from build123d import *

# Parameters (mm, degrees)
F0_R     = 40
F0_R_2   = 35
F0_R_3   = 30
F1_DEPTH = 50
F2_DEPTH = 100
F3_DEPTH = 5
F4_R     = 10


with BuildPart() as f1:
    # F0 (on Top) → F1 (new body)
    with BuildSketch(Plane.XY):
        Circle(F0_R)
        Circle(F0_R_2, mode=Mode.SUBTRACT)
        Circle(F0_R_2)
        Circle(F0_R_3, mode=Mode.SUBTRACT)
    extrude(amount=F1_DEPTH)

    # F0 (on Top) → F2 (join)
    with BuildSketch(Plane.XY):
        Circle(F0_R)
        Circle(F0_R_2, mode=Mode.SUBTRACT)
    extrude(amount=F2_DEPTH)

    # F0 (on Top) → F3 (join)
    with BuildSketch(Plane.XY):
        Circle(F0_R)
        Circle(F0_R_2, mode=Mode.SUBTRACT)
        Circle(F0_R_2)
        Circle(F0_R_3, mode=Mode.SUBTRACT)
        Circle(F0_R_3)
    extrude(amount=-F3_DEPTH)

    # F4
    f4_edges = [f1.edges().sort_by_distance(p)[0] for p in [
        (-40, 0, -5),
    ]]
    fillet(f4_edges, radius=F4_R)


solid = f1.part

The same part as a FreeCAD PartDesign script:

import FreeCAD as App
import Part
import Sketcher

V = App.Vector
Q = App.Units.Quantity


def edges_at(feature, points):
    """Names of the edges that pass closest to the given points."""
    edges = feature.Shape.Edges
    near = lambda p: min(range(len(edges)), key=lambda i: edges[i].distToShape(Part.Vertex(*p))[0])
    return sorted({f"Edge{near(p) + 1}" for p in points})

doc = App.newDocument("Part")
body = doc.addObject("PartDesign::Body", "Body")

sketch1 = body.newObject("Sketcher::SketchObject", "Sketch")
sketch1.AttachmentSupport = (doc.getObject("XY_Plane"), [""])
sketch1.MapMode = "FlatFace"
sketch1.addGeometry(Part.Circle(V(0, 0, 0), V(0, 0, 1), 40), False)
sketch1.addGeometry(Part.Circle(V(0, 0, 0), V(0, 0, 1), 30), False)
sketch1.addConstraint(Sketcher.Constraint("Coincident", 0, 3, -1, 1))
sketch1.addConstraint(Sketcher.Constraint("Coincident", 1, 3, -1, 1))
sketch1.addConstraint(Sketcher.Constraint("Diameter", 0, Q("80 mm")))
sketch1.addConstraint(Sketcher.Constraint("Diameter", 1, Q("60 mm")))
pad1 = body.newObject("PartDesign::Pad", "Pad")
pad1.Profile = sketch1
pad1.Length = 50

sketch2 = body.newObject("Sketcher::SketchObject", "Sketch001")
sketch2.AttachmentSupport = (doc.getObject("XY_Plane"), [""])
sketch2.MapMode = "FlatFace"
sketch2.addGeometry(Part.Circle(V(0, 0, 0), V(0, 0, 1), 40), False)
sketch2.addGeometry(Part.Circle(V(0, 0, 0), V(0, 0, 1), 35), False)
sketch2.addConstraint(Sketcher.Constraint("Coincident", 0, 3, -1, 1))
sketch2.addConstraint(Sketcher.Constraint("Coincident", 1, 3, -1, 1))
sketch2.addConstraint(Sketcher.Constraint("Diameter", 0, Q("80 mm")))
sketch2.addConstraint(Sketcher.Constraint("Diameter", 1, Q("70 mm")))
pad2 = body.newObject("PartDesign::Pad", "Pad001")
pad2.Profile = sketch2
pad2.Length = 100

sketch3 = body.newObject("Sketcher::SketchObject", "Sketch002")
sketch3.AttachmentSupport = (doc.getObject("XY_Plane"), [""])
sketch3.MapMode = "FlatFace"
sketch3.addGeometry(Part.Circle(V(0, 0, 0), V(0, 0, 1), 40), False)
sketch3.addConstraint(Sketcher.Constraint("Coincident", 0, 3, -1, 1))
sketch3.addConstraint(Sketcher.Constraint("Diameter", 0, Q("80 mm")))
pad3 = body.newObject("PartDesign::Pad", "Pad002")
pad3.Profile = sketch3
pad3.Length = 5
pad3.Reversed = True
doc.recompute()

fillet = body.newObject("PartDesign::Fillet", "Fillet")
fillet.Base = (pad3, edges_at(pad3, [(-40, 0, -5)]))
fillet.Radius = 10

doc.recompute()
